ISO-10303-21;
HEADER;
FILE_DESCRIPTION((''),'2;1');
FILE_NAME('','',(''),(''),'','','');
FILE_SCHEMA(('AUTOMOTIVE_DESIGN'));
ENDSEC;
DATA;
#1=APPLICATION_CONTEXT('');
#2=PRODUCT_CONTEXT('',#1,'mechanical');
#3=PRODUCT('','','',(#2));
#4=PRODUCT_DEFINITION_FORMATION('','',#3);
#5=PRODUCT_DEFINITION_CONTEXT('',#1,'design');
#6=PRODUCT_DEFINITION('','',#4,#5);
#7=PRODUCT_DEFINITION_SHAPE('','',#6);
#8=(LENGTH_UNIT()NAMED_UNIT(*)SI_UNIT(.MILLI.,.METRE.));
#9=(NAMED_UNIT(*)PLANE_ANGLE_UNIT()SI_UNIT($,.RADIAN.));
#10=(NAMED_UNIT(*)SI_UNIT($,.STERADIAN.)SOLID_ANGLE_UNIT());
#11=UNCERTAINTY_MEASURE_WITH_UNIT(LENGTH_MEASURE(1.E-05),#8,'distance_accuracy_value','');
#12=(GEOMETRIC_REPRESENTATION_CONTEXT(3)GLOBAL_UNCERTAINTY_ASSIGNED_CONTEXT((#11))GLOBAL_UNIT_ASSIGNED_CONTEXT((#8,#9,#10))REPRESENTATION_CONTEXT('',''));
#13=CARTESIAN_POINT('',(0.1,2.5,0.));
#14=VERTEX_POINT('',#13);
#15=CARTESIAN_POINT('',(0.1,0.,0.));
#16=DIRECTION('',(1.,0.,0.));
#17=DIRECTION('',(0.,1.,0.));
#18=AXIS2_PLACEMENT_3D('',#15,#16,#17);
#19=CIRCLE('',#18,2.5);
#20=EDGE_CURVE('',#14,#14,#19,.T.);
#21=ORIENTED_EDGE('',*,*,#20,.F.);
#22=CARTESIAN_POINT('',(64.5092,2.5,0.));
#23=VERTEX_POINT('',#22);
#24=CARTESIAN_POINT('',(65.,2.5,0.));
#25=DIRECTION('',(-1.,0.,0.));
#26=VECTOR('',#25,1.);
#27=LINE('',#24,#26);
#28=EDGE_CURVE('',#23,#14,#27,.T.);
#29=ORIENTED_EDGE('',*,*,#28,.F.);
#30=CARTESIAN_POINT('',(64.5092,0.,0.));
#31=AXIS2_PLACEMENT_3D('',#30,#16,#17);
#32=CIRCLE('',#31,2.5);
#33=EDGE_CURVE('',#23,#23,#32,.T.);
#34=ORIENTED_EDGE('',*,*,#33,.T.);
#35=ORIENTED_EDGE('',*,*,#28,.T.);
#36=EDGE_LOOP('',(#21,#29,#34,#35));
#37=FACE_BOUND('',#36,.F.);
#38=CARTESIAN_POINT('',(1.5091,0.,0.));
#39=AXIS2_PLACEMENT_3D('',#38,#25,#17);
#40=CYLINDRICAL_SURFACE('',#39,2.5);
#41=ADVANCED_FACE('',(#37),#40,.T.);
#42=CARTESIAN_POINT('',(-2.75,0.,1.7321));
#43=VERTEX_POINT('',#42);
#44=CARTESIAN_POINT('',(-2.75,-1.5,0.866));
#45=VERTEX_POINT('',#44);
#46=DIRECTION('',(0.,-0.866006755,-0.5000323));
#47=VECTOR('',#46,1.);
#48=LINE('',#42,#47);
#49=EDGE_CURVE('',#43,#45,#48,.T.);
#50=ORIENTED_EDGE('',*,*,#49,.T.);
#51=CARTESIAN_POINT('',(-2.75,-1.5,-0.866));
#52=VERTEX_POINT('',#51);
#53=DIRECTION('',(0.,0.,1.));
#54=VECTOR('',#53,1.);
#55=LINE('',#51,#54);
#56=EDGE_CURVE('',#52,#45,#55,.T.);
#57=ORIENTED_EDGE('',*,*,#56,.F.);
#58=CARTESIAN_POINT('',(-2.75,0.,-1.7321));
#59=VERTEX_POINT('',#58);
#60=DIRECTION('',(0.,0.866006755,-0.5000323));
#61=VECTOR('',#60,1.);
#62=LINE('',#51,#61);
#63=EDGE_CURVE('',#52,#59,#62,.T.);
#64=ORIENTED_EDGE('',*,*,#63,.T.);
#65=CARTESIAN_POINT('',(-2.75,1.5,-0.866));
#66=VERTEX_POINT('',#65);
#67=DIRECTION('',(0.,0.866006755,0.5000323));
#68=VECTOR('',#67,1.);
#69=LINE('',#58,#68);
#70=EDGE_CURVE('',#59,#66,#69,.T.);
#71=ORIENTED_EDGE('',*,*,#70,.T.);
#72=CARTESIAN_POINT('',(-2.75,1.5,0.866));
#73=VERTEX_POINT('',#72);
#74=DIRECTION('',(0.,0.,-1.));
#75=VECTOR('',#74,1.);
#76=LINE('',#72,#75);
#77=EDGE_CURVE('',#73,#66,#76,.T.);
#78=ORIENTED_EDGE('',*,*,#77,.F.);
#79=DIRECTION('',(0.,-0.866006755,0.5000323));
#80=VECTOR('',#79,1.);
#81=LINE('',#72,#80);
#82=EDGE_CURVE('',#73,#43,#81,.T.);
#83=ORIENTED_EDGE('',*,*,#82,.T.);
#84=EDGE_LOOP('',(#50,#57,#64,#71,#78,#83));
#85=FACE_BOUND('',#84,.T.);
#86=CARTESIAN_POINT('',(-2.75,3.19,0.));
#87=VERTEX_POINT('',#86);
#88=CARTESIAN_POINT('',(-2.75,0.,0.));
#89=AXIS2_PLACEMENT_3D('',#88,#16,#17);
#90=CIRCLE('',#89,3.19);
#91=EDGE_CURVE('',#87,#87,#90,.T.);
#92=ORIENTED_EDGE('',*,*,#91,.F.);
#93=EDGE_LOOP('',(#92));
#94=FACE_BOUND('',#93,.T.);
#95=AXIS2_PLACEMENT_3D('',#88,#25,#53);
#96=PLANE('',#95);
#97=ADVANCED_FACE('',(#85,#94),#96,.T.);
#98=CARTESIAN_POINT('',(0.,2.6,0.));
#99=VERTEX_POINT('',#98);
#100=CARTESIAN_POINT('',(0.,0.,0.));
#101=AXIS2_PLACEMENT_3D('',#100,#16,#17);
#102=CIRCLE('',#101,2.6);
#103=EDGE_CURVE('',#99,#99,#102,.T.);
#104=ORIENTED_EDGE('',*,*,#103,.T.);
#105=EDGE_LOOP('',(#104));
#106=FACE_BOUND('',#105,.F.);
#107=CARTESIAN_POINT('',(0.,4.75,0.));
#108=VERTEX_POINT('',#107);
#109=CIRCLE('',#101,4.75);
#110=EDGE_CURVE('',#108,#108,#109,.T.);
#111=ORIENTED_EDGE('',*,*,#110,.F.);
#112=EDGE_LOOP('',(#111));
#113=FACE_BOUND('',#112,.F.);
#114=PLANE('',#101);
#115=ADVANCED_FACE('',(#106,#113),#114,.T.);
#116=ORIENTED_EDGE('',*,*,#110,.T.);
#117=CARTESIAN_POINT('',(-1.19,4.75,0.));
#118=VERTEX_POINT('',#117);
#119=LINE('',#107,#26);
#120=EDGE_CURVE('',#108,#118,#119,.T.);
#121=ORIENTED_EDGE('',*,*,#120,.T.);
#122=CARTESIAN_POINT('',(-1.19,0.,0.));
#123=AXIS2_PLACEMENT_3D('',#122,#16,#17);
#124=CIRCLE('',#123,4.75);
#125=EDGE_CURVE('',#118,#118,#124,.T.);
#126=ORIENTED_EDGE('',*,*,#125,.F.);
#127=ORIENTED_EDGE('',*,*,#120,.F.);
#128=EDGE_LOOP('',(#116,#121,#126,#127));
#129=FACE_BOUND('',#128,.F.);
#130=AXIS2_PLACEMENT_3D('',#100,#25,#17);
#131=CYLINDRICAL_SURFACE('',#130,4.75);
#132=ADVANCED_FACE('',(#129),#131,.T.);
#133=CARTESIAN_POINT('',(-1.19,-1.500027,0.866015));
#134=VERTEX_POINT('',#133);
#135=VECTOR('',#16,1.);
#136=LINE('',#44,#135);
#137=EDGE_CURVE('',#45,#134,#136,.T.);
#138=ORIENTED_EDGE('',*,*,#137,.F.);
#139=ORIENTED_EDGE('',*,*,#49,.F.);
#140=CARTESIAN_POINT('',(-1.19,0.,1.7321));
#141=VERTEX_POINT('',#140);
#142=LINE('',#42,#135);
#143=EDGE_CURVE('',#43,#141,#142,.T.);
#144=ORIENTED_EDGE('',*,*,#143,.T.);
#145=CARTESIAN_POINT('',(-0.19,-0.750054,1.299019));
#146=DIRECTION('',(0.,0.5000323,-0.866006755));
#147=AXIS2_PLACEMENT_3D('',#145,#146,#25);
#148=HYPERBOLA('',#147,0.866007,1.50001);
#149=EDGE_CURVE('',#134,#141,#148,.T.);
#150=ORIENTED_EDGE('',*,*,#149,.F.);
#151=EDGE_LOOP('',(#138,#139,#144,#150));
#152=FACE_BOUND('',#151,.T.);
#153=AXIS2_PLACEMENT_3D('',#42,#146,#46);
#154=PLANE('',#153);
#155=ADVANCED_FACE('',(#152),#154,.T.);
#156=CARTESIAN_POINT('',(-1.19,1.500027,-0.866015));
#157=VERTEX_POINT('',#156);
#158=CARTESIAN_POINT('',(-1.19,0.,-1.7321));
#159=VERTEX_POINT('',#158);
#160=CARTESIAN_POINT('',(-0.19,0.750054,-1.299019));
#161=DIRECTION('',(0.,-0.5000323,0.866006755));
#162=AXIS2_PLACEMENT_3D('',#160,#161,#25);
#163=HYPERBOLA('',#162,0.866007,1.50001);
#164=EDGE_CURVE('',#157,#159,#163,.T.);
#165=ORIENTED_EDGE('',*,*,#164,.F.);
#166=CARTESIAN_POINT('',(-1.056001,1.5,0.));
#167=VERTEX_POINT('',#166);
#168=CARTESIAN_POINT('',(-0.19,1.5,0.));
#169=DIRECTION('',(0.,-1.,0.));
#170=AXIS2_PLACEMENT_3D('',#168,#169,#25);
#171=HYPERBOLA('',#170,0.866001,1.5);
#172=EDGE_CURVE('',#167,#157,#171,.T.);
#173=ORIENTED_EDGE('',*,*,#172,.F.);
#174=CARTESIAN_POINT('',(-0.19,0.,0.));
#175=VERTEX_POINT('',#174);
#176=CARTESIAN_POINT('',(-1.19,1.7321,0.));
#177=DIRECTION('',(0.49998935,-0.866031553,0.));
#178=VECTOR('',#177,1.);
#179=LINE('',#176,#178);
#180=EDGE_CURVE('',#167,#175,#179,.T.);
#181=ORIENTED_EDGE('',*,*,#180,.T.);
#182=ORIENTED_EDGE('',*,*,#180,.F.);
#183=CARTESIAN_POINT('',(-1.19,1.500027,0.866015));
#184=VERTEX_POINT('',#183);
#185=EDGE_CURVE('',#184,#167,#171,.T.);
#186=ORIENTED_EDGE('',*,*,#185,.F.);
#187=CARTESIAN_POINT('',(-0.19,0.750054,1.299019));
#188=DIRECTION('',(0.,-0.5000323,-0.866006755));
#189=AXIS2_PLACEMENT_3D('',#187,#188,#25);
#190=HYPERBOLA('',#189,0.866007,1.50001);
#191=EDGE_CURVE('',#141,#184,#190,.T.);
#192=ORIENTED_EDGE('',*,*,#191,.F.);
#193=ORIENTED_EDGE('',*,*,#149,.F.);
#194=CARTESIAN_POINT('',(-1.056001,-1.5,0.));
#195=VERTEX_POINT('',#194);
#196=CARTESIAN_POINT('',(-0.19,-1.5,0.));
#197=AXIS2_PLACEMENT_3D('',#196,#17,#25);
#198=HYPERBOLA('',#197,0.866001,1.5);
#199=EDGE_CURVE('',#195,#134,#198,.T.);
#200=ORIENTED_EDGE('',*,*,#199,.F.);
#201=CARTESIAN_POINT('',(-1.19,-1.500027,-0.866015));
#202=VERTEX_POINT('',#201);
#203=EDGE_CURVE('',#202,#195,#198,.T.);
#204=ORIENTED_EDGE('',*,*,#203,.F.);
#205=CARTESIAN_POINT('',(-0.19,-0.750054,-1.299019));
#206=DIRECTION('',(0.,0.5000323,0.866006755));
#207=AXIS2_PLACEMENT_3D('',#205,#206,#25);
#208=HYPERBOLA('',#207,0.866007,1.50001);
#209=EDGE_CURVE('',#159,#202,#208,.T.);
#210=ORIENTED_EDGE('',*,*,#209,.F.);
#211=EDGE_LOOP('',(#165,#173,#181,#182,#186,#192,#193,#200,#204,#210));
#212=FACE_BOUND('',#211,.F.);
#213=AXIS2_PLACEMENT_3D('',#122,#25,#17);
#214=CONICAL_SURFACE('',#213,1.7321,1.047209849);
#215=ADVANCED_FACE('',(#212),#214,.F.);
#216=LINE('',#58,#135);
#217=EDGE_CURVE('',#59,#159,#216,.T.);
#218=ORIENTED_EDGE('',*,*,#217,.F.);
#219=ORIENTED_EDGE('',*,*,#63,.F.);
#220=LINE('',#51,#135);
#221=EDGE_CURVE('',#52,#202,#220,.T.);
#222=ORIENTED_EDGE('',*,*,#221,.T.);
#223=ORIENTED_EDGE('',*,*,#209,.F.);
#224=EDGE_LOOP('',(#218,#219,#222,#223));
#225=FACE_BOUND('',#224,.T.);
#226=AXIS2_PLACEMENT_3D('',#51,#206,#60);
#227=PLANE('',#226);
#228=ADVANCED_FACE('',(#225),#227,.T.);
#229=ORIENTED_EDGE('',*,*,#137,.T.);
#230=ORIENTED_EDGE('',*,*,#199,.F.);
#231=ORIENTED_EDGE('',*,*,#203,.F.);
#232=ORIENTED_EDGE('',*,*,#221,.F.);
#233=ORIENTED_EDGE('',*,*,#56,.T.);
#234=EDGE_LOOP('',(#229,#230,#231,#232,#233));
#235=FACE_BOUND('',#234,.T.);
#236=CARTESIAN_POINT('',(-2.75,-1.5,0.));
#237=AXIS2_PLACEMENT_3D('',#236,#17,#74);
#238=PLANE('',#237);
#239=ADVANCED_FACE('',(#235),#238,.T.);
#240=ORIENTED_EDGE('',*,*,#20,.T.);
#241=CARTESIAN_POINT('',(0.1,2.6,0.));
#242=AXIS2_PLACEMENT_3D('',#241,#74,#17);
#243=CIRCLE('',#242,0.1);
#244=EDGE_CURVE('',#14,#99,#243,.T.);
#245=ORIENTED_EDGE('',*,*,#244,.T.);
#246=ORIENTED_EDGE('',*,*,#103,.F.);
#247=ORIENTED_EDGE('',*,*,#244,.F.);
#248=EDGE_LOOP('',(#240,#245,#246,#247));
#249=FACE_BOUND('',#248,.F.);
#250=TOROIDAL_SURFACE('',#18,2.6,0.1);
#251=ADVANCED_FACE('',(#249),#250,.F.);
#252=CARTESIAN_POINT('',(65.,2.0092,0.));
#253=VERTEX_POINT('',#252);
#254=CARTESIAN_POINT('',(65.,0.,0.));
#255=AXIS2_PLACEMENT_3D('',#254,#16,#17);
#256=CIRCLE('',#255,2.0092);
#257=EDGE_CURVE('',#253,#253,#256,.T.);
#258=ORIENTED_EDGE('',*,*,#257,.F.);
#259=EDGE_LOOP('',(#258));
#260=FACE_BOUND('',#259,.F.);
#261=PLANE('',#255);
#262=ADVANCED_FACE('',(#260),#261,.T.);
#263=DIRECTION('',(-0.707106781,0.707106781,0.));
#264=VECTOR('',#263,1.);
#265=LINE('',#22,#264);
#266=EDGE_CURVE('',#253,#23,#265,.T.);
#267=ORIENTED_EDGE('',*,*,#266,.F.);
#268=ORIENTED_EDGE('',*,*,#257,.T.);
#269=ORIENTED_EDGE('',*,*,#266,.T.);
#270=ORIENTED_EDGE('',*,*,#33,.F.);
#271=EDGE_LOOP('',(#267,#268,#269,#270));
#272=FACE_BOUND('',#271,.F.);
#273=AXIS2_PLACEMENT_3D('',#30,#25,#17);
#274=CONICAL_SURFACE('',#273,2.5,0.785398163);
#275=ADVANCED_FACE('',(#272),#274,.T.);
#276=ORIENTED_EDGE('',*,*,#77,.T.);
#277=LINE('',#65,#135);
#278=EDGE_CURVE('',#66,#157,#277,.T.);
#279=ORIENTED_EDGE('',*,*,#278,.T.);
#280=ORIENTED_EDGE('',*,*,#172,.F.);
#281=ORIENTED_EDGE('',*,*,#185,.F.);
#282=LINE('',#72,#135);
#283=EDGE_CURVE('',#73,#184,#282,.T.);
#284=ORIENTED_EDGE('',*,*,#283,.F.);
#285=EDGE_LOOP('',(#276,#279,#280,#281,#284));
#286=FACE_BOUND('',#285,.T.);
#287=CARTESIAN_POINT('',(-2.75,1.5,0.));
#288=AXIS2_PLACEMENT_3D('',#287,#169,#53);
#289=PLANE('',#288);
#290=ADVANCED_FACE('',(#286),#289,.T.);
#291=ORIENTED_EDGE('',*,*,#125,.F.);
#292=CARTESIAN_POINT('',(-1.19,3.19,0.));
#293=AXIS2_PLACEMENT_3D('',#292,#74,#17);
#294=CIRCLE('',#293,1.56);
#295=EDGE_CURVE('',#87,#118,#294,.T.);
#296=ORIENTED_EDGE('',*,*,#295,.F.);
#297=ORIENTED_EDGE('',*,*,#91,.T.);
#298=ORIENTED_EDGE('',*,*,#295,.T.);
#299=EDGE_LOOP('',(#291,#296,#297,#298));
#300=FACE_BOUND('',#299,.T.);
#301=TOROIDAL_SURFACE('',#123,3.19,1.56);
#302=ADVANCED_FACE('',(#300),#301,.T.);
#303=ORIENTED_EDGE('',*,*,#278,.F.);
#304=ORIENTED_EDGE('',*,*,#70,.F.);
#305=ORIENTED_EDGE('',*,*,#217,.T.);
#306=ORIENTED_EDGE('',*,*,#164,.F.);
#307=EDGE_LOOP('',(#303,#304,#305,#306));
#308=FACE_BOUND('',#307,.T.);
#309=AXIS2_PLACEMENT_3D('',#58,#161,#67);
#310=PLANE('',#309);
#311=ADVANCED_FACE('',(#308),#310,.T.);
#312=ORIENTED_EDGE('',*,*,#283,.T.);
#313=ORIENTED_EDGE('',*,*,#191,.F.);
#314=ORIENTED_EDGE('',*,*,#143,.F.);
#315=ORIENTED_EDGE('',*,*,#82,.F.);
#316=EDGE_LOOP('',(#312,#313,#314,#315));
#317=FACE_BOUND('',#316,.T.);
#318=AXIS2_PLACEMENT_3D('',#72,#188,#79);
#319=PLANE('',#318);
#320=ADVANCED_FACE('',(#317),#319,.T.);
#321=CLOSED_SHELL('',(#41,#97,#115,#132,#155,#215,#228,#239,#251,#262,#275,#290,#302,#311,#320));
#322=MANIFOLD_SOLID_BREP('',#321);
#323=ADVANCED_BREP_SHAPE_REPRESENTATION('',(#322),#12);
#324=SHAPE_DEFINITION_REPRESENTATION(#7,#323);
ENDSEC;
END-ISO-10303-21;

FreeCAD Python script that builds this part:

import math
import FreeCAD as App
import Part
import Sketcher
Q = App.Units.Quantity


def edges_at(feature, points):
    """Names of the edges that pass closest to the given points."""
    edges = feature.Shape.Edges
    near = lambda p: min(range(len(edges)), key=lambda i: edges[i].distToShape(Part.Vertex(*p))[0])
    return sorted({f"Edge{near(p) + 1}" for p in points})

doc = App.newDocument("Part")
params = doc.addObject("Spreadsheet::Sheet", "Params")
for row, (alias, value) in enumerate([
    ("sketch1_width", "65 mm"),
    ("sketch1_width2", "2.75 mm"),
    ("sketch1_width3", "1.56 mm"),
    ("sketch1_length", "2 mm"),
    ("sketch1_height", "2.5 mm"),
    ("revolution_angle", "360 deg"),
    ("fillet_radius", "1.56 mm"),
    ("chamfer_size", "0.4908 mm"),
    ("chamfer_size2", "0.4908 mm"),
    ("fillet2_radius", "0.1 mm"),
], start=1):
    params.set(f"A{row}", alias)
    params.set(f"B{row}", "=" + value)
    params.setAlias(f"B{row}", alias)

body = doc.addObject("PartDesign::Body", "Body")

# Sketch on XY plane
sketch1 = doc.addObject("Sketcher::SketchObject", "Sketch")
body.addObject(sketch1)
sketch1.AttachmentSupport = (doc.XY_Plane, [""])
sketch1.MapMode = "FlatFace"
sketch1.addGeometry(Part.LineSegment(App.Vector(-1.2, 1.7, 0), App.Vector(-0.2, 0, 0)), False)
sketch1.addGeometry(Part.LineSegment(App.Vector(-0.2, 0, 0), App.Vector(65, 0, 0)), False)
sketch1.addGeometry(Part.LineSegment(App.Vector(65, 0, 0), App.Vector(65, 2.5, 0)), False)
sketch1.addGeometry(Part.LineSegment(App.Vector(65, 2.5, 0), App.Vector(0, 2.5, 0)), False)
sketch1.addGeometry(Part.LineSegment(App.Vector(0, 2.5, 0), App.Vector(0, 4.8, 0)), False)
sketch1.addGeometry(Part.LineSegment(App.Vector(0, 4.8, 0), App.Vector(-2.8, 4.8, 0)), False)
sketch1.addGeometry(Part.LineSegment(App.Vector(-2.8, 4.8, 0), App.Vector(-2.8, 1.7, 0)), False)
sketch1.addGeometry(Part.LineSegment(App.Vector(-2.8, 1.7, 0), App.Vector(-1.2, 1.7, 0)), False)
sketch1.addConstraint(Sketcher.Constraint("Coincident", 0, 2, 1, 1))
sketch1.addConstraint(Sketcher.Constraint("Coincident", 1, 2, 2, 1))
sketch1.addConstraint(Sketcher.Constraint("Coincident", 2, 2, 3, 1))
sketch1.addConstraint(Sketcher.Constraint("Coincident", 3, 2, 4, 1))
sketch1.addConstraint(Sketcher.Constraint("Coincident", 4, 2, 5, 1))
sketch1.addConstraint(Sketcher.Constraint("Coincident", 5, 2, 6, 1))
sketch1.addConstraint(Sketcher.Constraint("Coincident", 6, 2, 7, 1))
sketch1.addConstraint(Sketcher.Constraint("Coincident", 7, 2, 0, 1))
sketch1.addConstraint(Sketcher.Constraint("Horizontal", 1))
sketch1.addConstraint(Sketcher.Constraint("Vertical", 2))
sketch1.addConstraint(Sketcher.Constraint("Horizontal", 3))
sketch1.addConstraint(Sketcher.Constraint("Vertical", 4))
sketch1.addConstraint(Sketcher.Constraint("Horizontal", 5))
sketch1.addConstraint(Sketcher.Constraint("Vertical", 6))
sketch1.addConstraint(Sketcher.Constraint("Horizontal", 7))
sketch1.addConstraint(Sketcher.Constraint("PointOnObject", 0, 2, -1))
sketch1.addConstraint(Sketcher.Constraint("PointOnObject", 3, 2, -2))
sketch1.addConstraint(Sketcher.Constraint("DistanceX", 3, 2, 3, 1, Q("65 mm")))
sketch1.addConstraint(Sketcher.Constraint("DistanceX", 5, 2, 5, 1, Q("2.75 mm")))
sketch1.addConstraint(Sketcher.Constraint("DistanceX", 7, 1, 7, 2, Q("1.56 mm")))
sketch1.addConstraint(Sketcher.Constraint("Angle", 0, Q("-60.0007 deg")))
sketch1.addConstraint(Sketcher.Constraint("Distance", 0, Q("2 mm")))
sketch1.addConstraint(Sketcher.Constraint("DistanceY", 2, 1, 2, 2, Q("2.5 mm")))
sketch1.addConstraint(Sketcher.Constraint("DistanceY", 4, 1, 4, 2, Q("2.25 mm")))
sketch1.setExpression("Constraints[17]", "Params.sketch1_width")
sketch1.setExpression("Constraints[18]", "Params.sketch1_width2")
sketch1.setExpression("Constraints[19]", "Params.sketch1_width3")
sketch1.setExpression("Constraints[21]", "Params.sketch1_length")
sketch1.setExpression("Constraints[22]", "Params.sketch1_height")
revolution = doc.addObject("PartDesign::Revolution", "Revolution")
body.addObject(revolution)
revolution.Profile = sketch1
revolution.ReferenceAxis = (sketch1, ["H_Axis"])
revolution.setExpression("Angle", "Params.revolution_angle")

# Sketch on YZ plane
sketch2 = doc.addObject("Sketcher::SketchObject", "Sketch001")
body.addObject(sketch2)
sketch2.AttachmentSupport = (doc.YZ_Plane, [""])
sketch2.MapMode = "FlatFace"
sketch2.AttachmentOffset = App.Placement(App.Vector(0, 0, -2.75), App.Rotation())
sketch2.addGeometry(Part.LineSegment(App.Vector(1.5, 0.9, 0), App.Vector(0, 1.7, 0)), False)
sketch2.addGeometry(Part.ArcOfCircle(Part.Circle(App.Vector(0, 0, 0), App.Vector(0, 0, 1), 1.7), math.radians(30), math.radians(90)), False)
sketch2.addGeometry(Part.ArcOfCircle(Part.Circle(App.Vector(0, 0, 0), App.Vector(0, 0, 1), 1.7), math.radians(90), math.radians(150)), False)
sketch2.addGeometry(Part.LineSegment(App.Vector(0, 1.7, 0), App.Vector(-1.5, 0.9, 0)), False)
sketch2.addGeometry(Part.ArcOfCircle(Part.Circle(App.Vector(0, 0, 0), App.Vector(0, 0, 1), 1.7), math.radians(-30), math.radians(30)), False)
sketch2.addGeometry(Part.LineSegment(App.Vector(1.5, 0.9, 0), App.Vector(1.5, -0.9, 0)), False)
sketch2.addGeometry(Part.LineSegment(App.Vector(-1.5, 0.9, 0), App.Vector(-1.5, -0.9, 0)), False)
sketch2.addGeometry(Part.ArcOfCircle(Part.Circle(App.Vector(0, 0, 0), App.Vector(0, 0, 1), 1.7), math.radians(150), math.radians(210)), False)
sketch2.addGeometry(Part.LineSegment(App.Vector(-1.5, -0.9, 0), App.Vector(0, -1.7, 0)), False)
sketch2.addGeometry(Part.ArcOfCircle(Part.Circle(App.Vector(0, 0, 0), App.Vector(0, 0, 1), 1.7), math.radians(-150), math.radians(-90)), False)
sketch2.addGeometry(Part.ArcOfCircle(Part.Circle(App.Vector(0, 0, 0), App.Vector(0, 0, 1), 1.7), math.radians(-90), math.radians(-30)), False)
sketch2.addGeometry(Part.LineSegment(App.Vector(0, -1.7, 0), App.Vector(1.5, -0.9, 0)), False)
sketch2.addConstraint(Sketcher.Constraint("Coincident", 0, 1, 1, 1))
sketch2.addConstraint(Sketcher.Constraint("Coincident", 1, 2, 0, 2))
sketch2.addConstraint(Sketcher.Constraint("Coincident", 2, 1, 3, 1))
sketch2.addConstraint(Sketcher.Constraint("Coincident", 3, 2, 2, 2))
sketch2.addConstraint(Sketcher.Constraint("Coincident", 4, 1, 5, 2))
sketch2.addConstraint(Sketcher.Constraint("Coincident", 5, 1, 4, 2))
sketch2.addConstraint(Sketcher.Constraint("Coincident", 6, 1, 7, 1))
sketch2.addConstraint(Sketcher.Constraint("Coincident", 7, 2, 6, 2))
sketch2.addConstraint(Sketcher.Constraint("Coincident", 8, 1, 9, 1))
sketch2.addConstraint(Sketcher.Constraint("Coincident", 9, 2, 8, 2))
sketch2.addConstraint(Sketcher.Constraint("Coincident", 10, 1, 11, 1))
sketch2.addConstraint(Sketcher.Constraint("Coincident", 11, 2, 10, 2))
sketch2.addConstraint(Sketcher.Constraint("Vertical", 5))
sketch2.addConstraint(Sketcher.Constraint("Vertical", 6))
sketch2.addConstraint(Sketcher.Constraint("Coincident", 1, 3, -1, 1))
sketch2.addConstraint(Sketcher.Constraint("Coincident", 2, 3, -1, 1))
sketch2.addConstraint(Sketcher.Constraint("Coincident", 4, 3, -1, 1))
sketch2.addConstraint(Sketcher.Constraint("Coincident", 7, 3, -1, 1))
sketch2.addConstraint(Sketcher.Constraint("Coincident", 9, 3, -1, 1))
sketch2.addConstraint(Sketcher.Constraint("Coincident", 10, 3, -1, 1))
sketch2.addConstraint(Sketcher.Constraint("Coincident", 2, 1, 1, 2))
sketch2.addConstraint(Sketcher.Constraint("Coincident", 5, 1, 0, 1))
sketch2.addConstraint(Sketcher.Constraint("Coincident", 6, 1, 3, 2))
sketch2.addConstraint(Sketcher.Constraint("Coincident", 8, 1, 7, 2))
sketch2.addConstraint(Sketcher.Constraint("Coincident", 10, 1, 9, 2))
sketch2.addConstraint(Sketcher.Constraint("PointOnObject", 1, 2, -2))
sketch2.addConstraint(Sketcher.Constraint("PointOnObject", 9, 2, -2))
sketch2.addConstraint(Sketcher.Constraint("Parallel", 0, 8))
sketch2.addConstraint(Sketcher.Constraint("Parallel", 3, 11))
sketch2.addConstraint(Sketcher.Constraint("Radius", 1, Q("1.732 mm")))
sketch2.addConstraint(Sketcher.Constraint("DistanceX", -1, 1, 0, 1, Q("1.5 mm")))
pad1 = doc.addObject("PartDesign::Pad", "Pad")
body.addObject(pad1)
pad1.Profile = sketch2
pad1.Type = "UpToFirst"
doc.recompute()

fillet = doc.addObject("PartDesign::Fillet", "Fillet")
body.addObject(fillet)
fillet.Base = (pad1, edges_at(pad1, [(-2.75, -4.75, 0)]))
fillet.setExpression("Radius", "Params.fillet_radius")
doc.recompute()

chamfer = doc.addObject("PartDesign::Chamfer", "Chamfer")
body.addObject(chamfer)
chamfer.Base = (fillet, edges_at(fillet, [(65, -2.5, 0)]))
chamfer.ChamferType = "Two distances"
chamfer.setExpression("Size", "Params.chamfer_size")
chamfer.setExpression("Size2", "Params.chamfer_size2")
doc.recompute()

fillet2 = doc.addObject("PartDesign::Fillet", "Fillet001")
body.addObject(fillet2)
fillet2.Base = (chamfer, edges_at(chamfer, [(0, -2.5, 0)]))
fillet2.setExpression("Radius", "Params.fillet2_radius")

doc.recompute()
